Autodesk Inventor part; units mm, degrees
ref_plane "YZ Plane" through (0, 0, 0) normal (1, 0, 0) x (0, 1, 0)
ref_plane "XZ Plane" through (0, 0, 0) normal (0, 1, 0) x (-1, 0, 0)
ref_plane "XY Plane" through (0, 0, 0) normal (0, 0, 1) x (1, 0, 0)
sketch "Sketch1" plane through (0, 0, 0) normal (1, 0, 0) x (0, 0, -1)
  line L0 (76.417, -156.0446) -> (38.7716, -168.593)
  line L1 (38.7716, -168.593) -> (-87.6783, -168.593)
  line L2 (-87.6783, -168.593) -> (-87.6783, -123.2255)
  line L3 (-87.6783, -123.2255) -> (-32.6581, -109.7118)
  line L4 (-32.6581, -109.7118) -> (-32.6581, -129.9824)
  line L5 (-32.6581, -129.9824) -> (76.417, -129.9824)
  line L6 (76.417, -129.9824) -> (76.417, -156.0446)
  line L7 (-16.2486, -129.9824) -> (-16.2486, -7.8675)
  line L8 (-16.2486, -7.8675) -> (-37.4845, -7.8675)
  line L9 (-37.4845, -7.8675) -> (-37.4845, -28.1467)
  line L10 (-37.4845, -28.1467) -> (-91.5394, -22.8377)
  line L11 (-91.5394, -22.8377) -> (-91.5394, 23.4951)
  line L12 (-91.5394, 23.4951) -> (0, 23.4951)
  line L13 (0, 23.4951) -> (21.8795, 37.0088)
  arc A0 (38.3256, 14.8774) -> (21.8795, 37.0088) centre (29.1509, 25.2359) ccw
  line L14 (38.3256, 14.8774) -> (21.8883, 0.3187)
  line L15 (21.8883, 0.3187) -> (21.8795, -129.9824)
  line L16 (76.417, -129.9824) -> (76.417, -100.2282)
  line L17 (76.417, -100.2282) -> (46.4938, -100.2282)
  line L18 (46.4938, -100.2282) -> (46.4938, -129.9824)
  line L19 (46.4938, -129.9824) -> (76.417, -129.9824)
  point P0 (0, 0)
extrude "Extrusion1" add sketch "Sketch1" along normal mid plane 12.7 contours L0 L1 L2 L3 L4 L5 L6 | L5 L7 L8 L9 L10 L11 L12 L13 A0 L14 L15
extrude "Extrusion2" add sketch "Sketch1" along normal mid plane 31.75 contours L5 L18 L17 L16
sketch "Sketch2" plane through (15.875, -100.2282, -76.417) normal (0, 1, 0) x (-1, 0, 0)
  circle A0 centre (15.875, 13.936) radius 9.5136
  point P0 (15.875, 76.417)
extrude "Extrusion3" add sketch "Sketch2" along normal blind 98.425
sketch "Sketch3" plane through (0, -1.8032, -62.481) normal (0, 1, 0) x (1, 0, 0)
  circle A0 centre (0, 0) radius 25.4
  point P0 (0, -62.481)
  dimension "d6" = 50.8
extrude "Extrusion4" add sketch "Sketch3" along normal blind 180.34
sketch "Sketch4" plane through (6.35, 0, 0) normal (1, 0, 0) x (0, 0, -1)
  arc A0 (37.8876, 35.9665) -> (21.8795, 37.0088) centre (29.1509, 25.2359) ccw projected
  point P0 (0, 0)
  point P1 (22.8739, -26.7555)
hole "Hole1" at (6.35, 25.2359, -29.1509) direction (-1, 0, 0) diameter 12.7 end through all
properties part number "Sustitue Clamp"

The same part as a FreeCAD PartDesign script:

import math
import FreeCAD as App
import Part
import Sketcher

V = App.Vector
Q = App.Units.Quantity

doc = App.newDocument("Part")
body = doc.addObject("PartDesign::Body", "Body")

sketch1 = body.newObject("Sketcher::SketchObject", "Sketch")
sketch1.AttachmentSupport = (doc.getObject("YZ_Plane"), [""])
sketch1.MapMode = "FlatFace"
sketch1.addGeometry([
    Part.LineSegment(V(-168.593, -38.7716, 0), V(-156.0446, -76.417, 0)),
    Part.LineSegment(V(-156.0446, -76.417, 0), V(-129.9824, -76.417, 0)),
    Part.LineSegment(V(-129.9824, -76.417, 0), V(-129.9824, -21.8795, 0)),
    Part.LineSegment(V(-129.9824, -21.8795, 0), V(0.3187, -21.8883, 0)),
    Part.LineSegment(V(0.3187, -21.8883, 0), V(14.8774, -38.3256, 0)),
    Part.ArcOfCircle(Part.Circle(V(25.2359, -29.1509, 0), V(0, 0, 1), 13.8374), math.radians(-138.468141), math.radians(31.701088)),
    Part.LineSegment(V(37.0088, -21.8795, 0), V(23.4951, 0, 0)),
    Part.LineSegment(V(23.4951, 0, 0), V(23.4951, 91.5394, 0)),
    Part.LineSegment(V(23.4951, 91.5394, 0), V(-22.8377, 91.5394, 0)),
    Part.LineSegment(V(-22.8377, 91.5394, 0), V(-28.1467, 37.4845, 0)),
    Part.LineSegment(V(-28.1467, 37.4845, 0), V(-7.8675, 37.4845, 0)),
    Part.LineSegment(V(-7.8675, 37.4845, 0), V(-7.8675, 16.2486, 0)),
    Part.LineSegment(V(-7.8675, 16.2486, 0), V(-129.9824, 16.2486, 0)),
    Part.LineSegment(V(-129.9824, 16.2486, 0), V(-129.9824, 32.6581, 0)),
    Part.LineSegment(V(-129.9824, 32.6581, 0), V(-109.7118, 32.6581, 0)),
    Part.LineSegment(V(-109.7118, 32.6581, 0), V(-123.2255, 87.6783, 0)),
    Part.LineSegment(V(-123.2255, 87.6783, 0), V(-168.593, 87.6783, 0)),
    Part.LineSegment(V(-168.593, 87.6783, 0), V(-168.593, -38.7716, 0)),
], False)
sketch1.addConstraint([
    Sketcher.Constraint("Coincident", 0, 2, 1, 1),
    Sketcher.Constraint("Coincident", 1, 2, 2, 1),
    Sketcher.Constraint("Coincident", 2, 2, 3, 1),
    Sketcher.Constraint("Coincident", 3, 2, 4, 1),
    Sketcher.Constraint("Coincident", 4, 2, 5, 1),
    Sketcher.Constraint("Coincident", 5, 2, 6, 1),
    Sketcher.Constraint("Coincident", 6, 2, 7, 1),
    Sketcher.Constraint("Coincident", 7, 2, 8, 1),
    Sketcher.Constraint("Coincident", 8, 2, 9, 1),
    Sketcher.Constraint("Coincident", 9, 2, 10, 1),
    Sketcher.Constraint("Coincident", 10, 2, 11, 1),
    Sketcher.Constraint("Coincident", 11, 2, 12, 1),
    Sketcher.Constraint("Coincident", 12, 2, 13, 1),
    Sketcher.Constraint("Coincident", 13, 2, 14, 1),
    Sketcher.Constraint("Coincident", 14, 2, 15, 1),
    Sketcher.Constraint("Coincident", 15, 2, 16, 1),
    Sketcher.Constraint("Coincident", 16, 2, 17, 1),
    Sketcher.Constraint("Coincident", 17, 2, 0, 1),
    Sketcher.Constraint("Horizontal", 1),
    Sketcher.Constraint("Vertical", 2),
    Sketcher.Constraint("Vertical", 7),
    Sketcher.Constraint("Horizontal", 8),
    Sketcher.Constraint("Horizontal", 10),
    Sketcher.Constraint("Vertical", 11),
    Sketcher.Constraint("Horizontal", 12),
    Sketcher.Constraint("Vertical", 13),
    Sketcher.Constraint("Horizontal", 14),
    Sketcher.Constraint("Horizontal", 16),
    Sketcher.Constraint("Vertical", 17),
    Sketcher.Constraint("PointOnObject", 6, 2, -1),
    Sketcher.Constraint("Radius", 5, Q("13.8374 mm")),
    Sketcher.Constraint("DistanceX", 10, 1, 10, 2, Q("0.7984 in")),
    Sketcher.Constraint("DistanceX", -1, 1, 6, 2, Q("0.925 in")),
    Sketcher.Constraint("DistanceX", 3, 2, 5, 3, Q("0.981 in")),
    Sketcher.Constraint("DistanceY", 15, 2, 8, 2, Q("0.152 in")),
    Sketcher.Constraint("DistanceX", 1, 1, 1, 2, Q("26.0622 mm")),
    Sketcher.Constraint("DistanceX", 8, 2, 8, 1, Q("46.3328 mm")),
    Sketcher.Constraint("DistanceX", 12, 2, 12, 1, Q("122.115 mm")),
    Sketcher.Constraint("DistanceX", 14, 1, 14, 2, Q("20.2706 mm")),
    Sketcher.Constraint("DistanceX", 16, 2, 16, 1, Q("45.3675 mm")),
    Sketcher.Constraint("DistanceY", 2, 1, 2, 2, Q("54.5375 mm")),
    Sketcher.Constraint("DistanceY", 7, 1, 7, 2, Q("91.5394 mm")),
    Sketcher.Constraint("DistanceY", 11, 2, 11, 1, Q("21.236 mm")),
    Sketcher.Constraint("DistanceY", 13, 1, 13, 2, Q("16.4095 mm")),
    Sketcher.Constraint("DistanceY", 17, 2, 17, 1, Q("126.45 mm")),
    Sketcher.Constraint("DistanceX", 0, 2, -1, 1, Q("6.1435 in")),
    Sketcher.Constraint("DistanceY", 2, 2, -1, 1, Q("0.8614 in")),
    Sketcher.Constraint("DistanceY", 5, 2, -1, 1, Q("0.8614 in")),
    Sketcher.Constraint("DistanceY", -1, 1, 11, 2, Q("0.6397 in")),
    Sketcher.Constraint("DistanceX", 15, 2, -1, 1, Q("4.8514 in")),
    Sketcher.Constraint("DistanceY", 1, 2, 3, 2, Q("2.1468 in")),
    Sketcher.Constraint("DistanceY", 4, 2, 5, 3, Q("0.3612 in")),
    Sketcher.Constraint("DistanceX", 5, 3, 5, 2, Q("0.4635 in")),
    Sketcher.Constraint("DistanceX", 10, 2, 3, 2, Q("0.3223 in")),
    Sketcher.Constraint("DistanceX", 16, 2, 13, 2, Q("1.5201 in")),
])
pad1 = body.newObject("PartDesign::Pad", "Pad")
pad1.Profile = sketch1
pad1.Length = Q("0.5 in")
pad1.Midplane = True

sketch2 = body.newObject("Sketcher::SketchObject", "Sketch001")
sketch2.AttachmentSupport = (doc.getObject("YZ_Plane"), [""])
sketch2.MapMode = "FlatFace"
sketch2.addGeometry([
    Part.LineSegment(V(-129.9824, -46.4938, 0), V(-129.9824, -76.417, 0)),
    Part.LineSegment(V(-129.9824, -76.417, 0), V(-100.2282, -76.417, 0)),
    Part.LineSegment(V(-100.2282, -76.417, 0), V(-100.2282, -46.4938, 0)),
    Part.LineSegment(V(-100.2282, -46.4938, 0), V(-129.9824, -46.4938, 0)),
], False)
sketch2.addConstraint([
    Sketcher.Constraint("Coincident", 0, 2, 1, 1),
    Sketcher.Constraint("Coincident", 1, 2, 2, 1),
    Sketcher.Constraint("Coincident", 2, 2, 3, 1),
    Sketcher.Constraint("Coincident", 3, 2, 0, 1),
    Sketcher.Constraint("Vertical", 0),
    Sketcher.Constraint("Horizontal", 1),
    Sketcher.Constraint("Vertical", 2),
    Sketcher.Constraint("Horizontal", 3),
    Sketcher.Constraint("DistanceX", 1, 2, -1, 1, Q("3.946 in")),
    Sketcher.Constraint("DistanceX", 1, 1, 1, 2, Q("29.7542 mm")),
    Sketcher.Constraint("DistanceY", 0, 2, 0, 1, Q("29.9232 mm")),
    Sketcher.Constraint("DistanceY", 0, 2, -1, 1, Q("76.417 mm")),
])
pad2 = body.newObject("PartDesign::Pad", "Pad001")
pad2.Profile = sketch2
pad2.Length = Q("1.25 in")
pad2.Midplane = True

sketch3 = body.newObject("Sketcher::SketchObject", "Sketch002")
sketch3.AttachmentSupport = (doc.getObject("XZ_Plane"), [""])
sketch3.MapMode = "FlatFace"
sketch3.AttachmentOffset = App.Placement(V(0, 0, 3.9459921 * 25.4), App.Rotation())
sketch3.addGeometry(Part.Circle(V(0, -62.481, 0), V(0, 0, 1), 9.5136), False)
sketch3.addConstraint([
    Sketcher.Constraint("PointOnObject", 0, 3, -2),
    Sketcher.Constraint("Diameter", 0, Q("0.7491 in")),
    Sketcher.Constraint("DistanceY", 0, 3, -1, 1, Q("62.481 mm")),
])
pad3 = body.newObject("PartDesign::Pad", "Pad002")
pad3.Profile = sketch3
pad3.Length = Q("3.875 in")
pad3.Reversed = True

sketch4 = body.newObject("Sketcher::SketchObject", "Sketch003")
sketch4.AttachmentSupport = (doc.getObject("XZ_Plane"), [""])
sketch4.MapMode = "FlatFace"
sketch4.AttachmentOffset = App.Placement(V(0, 0, 0.0709921 * 25.4), App.Rotation())
sketch4.addGeometry(Part.Circle(V(0, -62.481, 0), V(0, 0, 1), 25.4), False)
sketch4.addConstraint([
    Sketcher.Constraint("PointOnObject", 0, 3, -2),
    Sketcher.Constraint("Diameter", 0, Q("2 in")),
    Sketcher.Constraint("DistanceY", 0, 3, -1, 1, Q("62.481 mm")),
])
pad4 = body.newObject("PartDesign::Pad", "Pad003")
pad4.Profile = sketch4
pad4.Length = Q("7.1 in")
pad4.Reversed = True

sketch5 = body.newObject("Sketcher::SketchObject", "Sketch004")
sketch5.AttachmentSupport = (doc.getObject("YZ_Plane"), [""])
sketch5.MapMode = "FlatFace"
sketch5.AttachmentOffset = App.Placement(V(0, 0, 0.25 * 25.4), App.Rotation())
sketch5.addGeometry(Part.Circle(V(25.2359, -29.1509, 0), V(0, 0, 1), 6.35), False)
sketch5.addConstraint([
    Sketcher.Constraint("Diameter", 0, Q("0.5 in")),
    Sketcher.Constraint("DistanceX", -1, 1, 0, 3, Q("25.236 mm")),
    Sketcher.Constraint("DistanceY", 0, 3, -1, 1, Q("29.151 mm")),
])
doc.recompute()
hole = body.newObject("PartDesign::Hole", "Hole")
hole.Profile = sketch5
hole.ThreadType = "None"
hole.Diameter = Q("0.5 in")
hole.DepthType = "ThroughAll"

doc.recompute()
